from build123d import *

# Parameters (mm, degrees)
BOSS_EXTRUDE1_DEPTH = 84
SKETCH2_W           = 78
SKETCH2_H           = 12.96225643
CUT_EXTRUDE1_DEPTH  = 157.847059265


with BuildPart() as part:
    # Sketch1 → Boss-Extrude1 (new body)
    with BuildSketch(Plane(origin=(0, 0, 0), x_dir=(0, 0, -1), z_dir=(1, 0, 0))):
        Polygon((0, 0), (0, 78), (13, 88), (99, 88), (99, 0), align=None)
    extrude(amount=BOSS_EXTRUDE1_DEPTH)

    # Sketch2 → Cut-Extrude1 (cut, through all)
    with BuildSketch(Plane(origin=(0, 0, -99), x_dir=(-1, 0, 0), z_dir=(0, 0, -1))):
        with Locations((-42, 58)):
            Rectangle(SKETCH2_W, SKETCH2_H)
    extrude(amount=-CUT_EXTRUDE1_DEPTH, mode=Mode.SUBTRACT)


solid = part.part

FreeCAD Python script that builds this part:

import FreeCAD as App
import Part
import Sketcher

V = App.Vector
Q = App.Units.Quantity


def add_polygon(sketch, points):
    """Adds a closed chain of lines whose ends are joined by coincident constraints."""
    first, n = sketch.GeometryCount, len(points)
    for a, b in zip(points, points[1:] + points[:1]):
        sketch.addGeometry(Part.LineSegment(App.Vector(*a, 0), App.Vector(*b, 0)), False)
    for i in range(n):
        sketch.addConstraint(Sketcher.Constraint("Coincident", first + i, 2, first + (i + 1) % n, 1))

doc = App.newDocument("Part")
body = doc.addObject("PartDesign::Body", "Body")

sketch1 = doc.addObject("Sketcher::SketchObject", "Sketch")
body.addObject(sketch1)
sketch1.AttachmentSupport = (doc.YZ_Plane, [""])
sketch1.MapMode = "FlatFace"
add_polygon(sketch1, [(78, 0), (0, 0), (0, -99), (88, -99), (88, -13)])
sketch1.addConstraint([
    Sketcher.Constraint("Horizontal", 0),
    Sketcher.Constraint("Vertical", 1),
    Sketcher.Constraint("Horizontal", 2),
    Sketcher.Constraint("Vertical", 3),
    Sketcher.Constraint("Coincident", 0, 2, -1, 1),
    Sketcher.Constraint("DistanceX", 0, 2, 0, 1, Q("78 mm")),
    Sketcher.Constraint("DistanceX", 2, 1, 2, 2, Q("88 mm")),
    Sketcher.Constraint("DistanceY", 1, 2, 1, 1, Q("99 mm")),
    Sketcher.Constraint("DistanceY", 3, 1, 3, 2, Q("86 mm")),
])
pad1 = doc.addObject("PartDesign::Pad", "Pad")
body.addObject(pad1)
pad1.Profile = sketch1
pad1.Length = 84

sketch2 = doc.addObject("Sketcher::SketchObject", "Sketch001")
body.addObject(sketch2)
sketch2.AttachmentSupport = (doc.XY_Plane, [""])
sketch2.MapMode = "FlatFace"
sketch2.AttachmentOffset = App.Placement(V(0, 0, -99), App.Rotation())
add_polygon(sketch2, [(81, 64.481128), (81, 51.518872), (3, 51.518872), (3, 64.481128)])
sketch2.addConstraint([
    Sketcher.Constraint("Vertical", 0),
    Sketcher.Constraint("Horizontal", 1),
    Sketcher.Constraint("Vertical", 2),
    Sketcher.Constraint("Horizontal", 3),
    Sketcher.Constraint("DistanceX", 1, 2, 1, 1, Q("78 mm")),
    Sketcher.Constraint("DistanceX", -1, 1, 0, 2, Q("81 mm")),
    Sketcher.Constraint("DistanceY", 0, 2, 0, 1, Q("12.962256 mm")),
    Sketcher.Constraint("DistanceY", -1, 1, 0, 2, Q("51.518872 mm")),
])
pocket1 = doc.addObject("PartDesign::Pocket", "Pocket")
body.addObject(pocket1)
pocket1.Profile = sketch2
pocket1.Type = "ThroughAll"
pocket1.Reversed = True

doc.recompute()
